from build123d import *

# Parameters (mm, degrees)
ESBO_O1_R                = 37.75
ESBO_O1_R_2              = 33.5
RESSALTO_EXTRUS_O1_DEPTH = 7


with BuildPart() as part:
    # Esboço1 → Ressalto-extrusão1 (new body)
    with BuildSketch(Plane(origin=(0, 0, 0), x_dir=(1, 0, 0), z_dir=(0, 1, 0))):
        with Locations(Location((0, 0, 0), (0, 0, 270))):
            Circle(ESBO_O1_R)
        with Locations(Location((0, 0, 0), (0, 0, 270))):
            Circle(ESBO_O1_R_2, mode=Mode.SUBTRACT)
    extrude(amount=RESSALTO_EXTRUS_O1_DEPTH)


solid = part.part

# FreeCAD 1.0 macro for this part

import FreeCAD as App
import Part
import Sketcher
from FreeCAD import Vector

doc = App.newDocument("Part")
body = doc.addObject("PartDesign::Body", "Body")

sketch1 = body.newObject("Sketcher::SketchObject", "Sketch")
sketch1.AttachmentSupport = (doc.getObject("XZ_Plane"), [""])
sketch1.MapMode = "FlatFace"
sketch1.addGeometry([
    Part.Circle(Vector(0, 0, 0), Vector(0, 0, 1), 37.75),
    Part.Circle(Vector(0, 0, 0), Vector(0, 0, 1), 33.5),
], False)
sketch1.addConstraint([
    Sketcher.Constraint("Coincident", 0, 3, -1, 1),
    Sketcher.Constraint("Coincident", 1, 3, -1, 1),
    Sketcher.Constraint("Diameter", 1, 67.0),
    Sketcher.Constraint("Diameter", 0, 75.5),
])
pad1 = body.newObject("PartDesign::Pad", "Pad")
pad1.Profile = sketch1
pad1.Length = 7
pad1.Reversed = True

doc.recompute()
